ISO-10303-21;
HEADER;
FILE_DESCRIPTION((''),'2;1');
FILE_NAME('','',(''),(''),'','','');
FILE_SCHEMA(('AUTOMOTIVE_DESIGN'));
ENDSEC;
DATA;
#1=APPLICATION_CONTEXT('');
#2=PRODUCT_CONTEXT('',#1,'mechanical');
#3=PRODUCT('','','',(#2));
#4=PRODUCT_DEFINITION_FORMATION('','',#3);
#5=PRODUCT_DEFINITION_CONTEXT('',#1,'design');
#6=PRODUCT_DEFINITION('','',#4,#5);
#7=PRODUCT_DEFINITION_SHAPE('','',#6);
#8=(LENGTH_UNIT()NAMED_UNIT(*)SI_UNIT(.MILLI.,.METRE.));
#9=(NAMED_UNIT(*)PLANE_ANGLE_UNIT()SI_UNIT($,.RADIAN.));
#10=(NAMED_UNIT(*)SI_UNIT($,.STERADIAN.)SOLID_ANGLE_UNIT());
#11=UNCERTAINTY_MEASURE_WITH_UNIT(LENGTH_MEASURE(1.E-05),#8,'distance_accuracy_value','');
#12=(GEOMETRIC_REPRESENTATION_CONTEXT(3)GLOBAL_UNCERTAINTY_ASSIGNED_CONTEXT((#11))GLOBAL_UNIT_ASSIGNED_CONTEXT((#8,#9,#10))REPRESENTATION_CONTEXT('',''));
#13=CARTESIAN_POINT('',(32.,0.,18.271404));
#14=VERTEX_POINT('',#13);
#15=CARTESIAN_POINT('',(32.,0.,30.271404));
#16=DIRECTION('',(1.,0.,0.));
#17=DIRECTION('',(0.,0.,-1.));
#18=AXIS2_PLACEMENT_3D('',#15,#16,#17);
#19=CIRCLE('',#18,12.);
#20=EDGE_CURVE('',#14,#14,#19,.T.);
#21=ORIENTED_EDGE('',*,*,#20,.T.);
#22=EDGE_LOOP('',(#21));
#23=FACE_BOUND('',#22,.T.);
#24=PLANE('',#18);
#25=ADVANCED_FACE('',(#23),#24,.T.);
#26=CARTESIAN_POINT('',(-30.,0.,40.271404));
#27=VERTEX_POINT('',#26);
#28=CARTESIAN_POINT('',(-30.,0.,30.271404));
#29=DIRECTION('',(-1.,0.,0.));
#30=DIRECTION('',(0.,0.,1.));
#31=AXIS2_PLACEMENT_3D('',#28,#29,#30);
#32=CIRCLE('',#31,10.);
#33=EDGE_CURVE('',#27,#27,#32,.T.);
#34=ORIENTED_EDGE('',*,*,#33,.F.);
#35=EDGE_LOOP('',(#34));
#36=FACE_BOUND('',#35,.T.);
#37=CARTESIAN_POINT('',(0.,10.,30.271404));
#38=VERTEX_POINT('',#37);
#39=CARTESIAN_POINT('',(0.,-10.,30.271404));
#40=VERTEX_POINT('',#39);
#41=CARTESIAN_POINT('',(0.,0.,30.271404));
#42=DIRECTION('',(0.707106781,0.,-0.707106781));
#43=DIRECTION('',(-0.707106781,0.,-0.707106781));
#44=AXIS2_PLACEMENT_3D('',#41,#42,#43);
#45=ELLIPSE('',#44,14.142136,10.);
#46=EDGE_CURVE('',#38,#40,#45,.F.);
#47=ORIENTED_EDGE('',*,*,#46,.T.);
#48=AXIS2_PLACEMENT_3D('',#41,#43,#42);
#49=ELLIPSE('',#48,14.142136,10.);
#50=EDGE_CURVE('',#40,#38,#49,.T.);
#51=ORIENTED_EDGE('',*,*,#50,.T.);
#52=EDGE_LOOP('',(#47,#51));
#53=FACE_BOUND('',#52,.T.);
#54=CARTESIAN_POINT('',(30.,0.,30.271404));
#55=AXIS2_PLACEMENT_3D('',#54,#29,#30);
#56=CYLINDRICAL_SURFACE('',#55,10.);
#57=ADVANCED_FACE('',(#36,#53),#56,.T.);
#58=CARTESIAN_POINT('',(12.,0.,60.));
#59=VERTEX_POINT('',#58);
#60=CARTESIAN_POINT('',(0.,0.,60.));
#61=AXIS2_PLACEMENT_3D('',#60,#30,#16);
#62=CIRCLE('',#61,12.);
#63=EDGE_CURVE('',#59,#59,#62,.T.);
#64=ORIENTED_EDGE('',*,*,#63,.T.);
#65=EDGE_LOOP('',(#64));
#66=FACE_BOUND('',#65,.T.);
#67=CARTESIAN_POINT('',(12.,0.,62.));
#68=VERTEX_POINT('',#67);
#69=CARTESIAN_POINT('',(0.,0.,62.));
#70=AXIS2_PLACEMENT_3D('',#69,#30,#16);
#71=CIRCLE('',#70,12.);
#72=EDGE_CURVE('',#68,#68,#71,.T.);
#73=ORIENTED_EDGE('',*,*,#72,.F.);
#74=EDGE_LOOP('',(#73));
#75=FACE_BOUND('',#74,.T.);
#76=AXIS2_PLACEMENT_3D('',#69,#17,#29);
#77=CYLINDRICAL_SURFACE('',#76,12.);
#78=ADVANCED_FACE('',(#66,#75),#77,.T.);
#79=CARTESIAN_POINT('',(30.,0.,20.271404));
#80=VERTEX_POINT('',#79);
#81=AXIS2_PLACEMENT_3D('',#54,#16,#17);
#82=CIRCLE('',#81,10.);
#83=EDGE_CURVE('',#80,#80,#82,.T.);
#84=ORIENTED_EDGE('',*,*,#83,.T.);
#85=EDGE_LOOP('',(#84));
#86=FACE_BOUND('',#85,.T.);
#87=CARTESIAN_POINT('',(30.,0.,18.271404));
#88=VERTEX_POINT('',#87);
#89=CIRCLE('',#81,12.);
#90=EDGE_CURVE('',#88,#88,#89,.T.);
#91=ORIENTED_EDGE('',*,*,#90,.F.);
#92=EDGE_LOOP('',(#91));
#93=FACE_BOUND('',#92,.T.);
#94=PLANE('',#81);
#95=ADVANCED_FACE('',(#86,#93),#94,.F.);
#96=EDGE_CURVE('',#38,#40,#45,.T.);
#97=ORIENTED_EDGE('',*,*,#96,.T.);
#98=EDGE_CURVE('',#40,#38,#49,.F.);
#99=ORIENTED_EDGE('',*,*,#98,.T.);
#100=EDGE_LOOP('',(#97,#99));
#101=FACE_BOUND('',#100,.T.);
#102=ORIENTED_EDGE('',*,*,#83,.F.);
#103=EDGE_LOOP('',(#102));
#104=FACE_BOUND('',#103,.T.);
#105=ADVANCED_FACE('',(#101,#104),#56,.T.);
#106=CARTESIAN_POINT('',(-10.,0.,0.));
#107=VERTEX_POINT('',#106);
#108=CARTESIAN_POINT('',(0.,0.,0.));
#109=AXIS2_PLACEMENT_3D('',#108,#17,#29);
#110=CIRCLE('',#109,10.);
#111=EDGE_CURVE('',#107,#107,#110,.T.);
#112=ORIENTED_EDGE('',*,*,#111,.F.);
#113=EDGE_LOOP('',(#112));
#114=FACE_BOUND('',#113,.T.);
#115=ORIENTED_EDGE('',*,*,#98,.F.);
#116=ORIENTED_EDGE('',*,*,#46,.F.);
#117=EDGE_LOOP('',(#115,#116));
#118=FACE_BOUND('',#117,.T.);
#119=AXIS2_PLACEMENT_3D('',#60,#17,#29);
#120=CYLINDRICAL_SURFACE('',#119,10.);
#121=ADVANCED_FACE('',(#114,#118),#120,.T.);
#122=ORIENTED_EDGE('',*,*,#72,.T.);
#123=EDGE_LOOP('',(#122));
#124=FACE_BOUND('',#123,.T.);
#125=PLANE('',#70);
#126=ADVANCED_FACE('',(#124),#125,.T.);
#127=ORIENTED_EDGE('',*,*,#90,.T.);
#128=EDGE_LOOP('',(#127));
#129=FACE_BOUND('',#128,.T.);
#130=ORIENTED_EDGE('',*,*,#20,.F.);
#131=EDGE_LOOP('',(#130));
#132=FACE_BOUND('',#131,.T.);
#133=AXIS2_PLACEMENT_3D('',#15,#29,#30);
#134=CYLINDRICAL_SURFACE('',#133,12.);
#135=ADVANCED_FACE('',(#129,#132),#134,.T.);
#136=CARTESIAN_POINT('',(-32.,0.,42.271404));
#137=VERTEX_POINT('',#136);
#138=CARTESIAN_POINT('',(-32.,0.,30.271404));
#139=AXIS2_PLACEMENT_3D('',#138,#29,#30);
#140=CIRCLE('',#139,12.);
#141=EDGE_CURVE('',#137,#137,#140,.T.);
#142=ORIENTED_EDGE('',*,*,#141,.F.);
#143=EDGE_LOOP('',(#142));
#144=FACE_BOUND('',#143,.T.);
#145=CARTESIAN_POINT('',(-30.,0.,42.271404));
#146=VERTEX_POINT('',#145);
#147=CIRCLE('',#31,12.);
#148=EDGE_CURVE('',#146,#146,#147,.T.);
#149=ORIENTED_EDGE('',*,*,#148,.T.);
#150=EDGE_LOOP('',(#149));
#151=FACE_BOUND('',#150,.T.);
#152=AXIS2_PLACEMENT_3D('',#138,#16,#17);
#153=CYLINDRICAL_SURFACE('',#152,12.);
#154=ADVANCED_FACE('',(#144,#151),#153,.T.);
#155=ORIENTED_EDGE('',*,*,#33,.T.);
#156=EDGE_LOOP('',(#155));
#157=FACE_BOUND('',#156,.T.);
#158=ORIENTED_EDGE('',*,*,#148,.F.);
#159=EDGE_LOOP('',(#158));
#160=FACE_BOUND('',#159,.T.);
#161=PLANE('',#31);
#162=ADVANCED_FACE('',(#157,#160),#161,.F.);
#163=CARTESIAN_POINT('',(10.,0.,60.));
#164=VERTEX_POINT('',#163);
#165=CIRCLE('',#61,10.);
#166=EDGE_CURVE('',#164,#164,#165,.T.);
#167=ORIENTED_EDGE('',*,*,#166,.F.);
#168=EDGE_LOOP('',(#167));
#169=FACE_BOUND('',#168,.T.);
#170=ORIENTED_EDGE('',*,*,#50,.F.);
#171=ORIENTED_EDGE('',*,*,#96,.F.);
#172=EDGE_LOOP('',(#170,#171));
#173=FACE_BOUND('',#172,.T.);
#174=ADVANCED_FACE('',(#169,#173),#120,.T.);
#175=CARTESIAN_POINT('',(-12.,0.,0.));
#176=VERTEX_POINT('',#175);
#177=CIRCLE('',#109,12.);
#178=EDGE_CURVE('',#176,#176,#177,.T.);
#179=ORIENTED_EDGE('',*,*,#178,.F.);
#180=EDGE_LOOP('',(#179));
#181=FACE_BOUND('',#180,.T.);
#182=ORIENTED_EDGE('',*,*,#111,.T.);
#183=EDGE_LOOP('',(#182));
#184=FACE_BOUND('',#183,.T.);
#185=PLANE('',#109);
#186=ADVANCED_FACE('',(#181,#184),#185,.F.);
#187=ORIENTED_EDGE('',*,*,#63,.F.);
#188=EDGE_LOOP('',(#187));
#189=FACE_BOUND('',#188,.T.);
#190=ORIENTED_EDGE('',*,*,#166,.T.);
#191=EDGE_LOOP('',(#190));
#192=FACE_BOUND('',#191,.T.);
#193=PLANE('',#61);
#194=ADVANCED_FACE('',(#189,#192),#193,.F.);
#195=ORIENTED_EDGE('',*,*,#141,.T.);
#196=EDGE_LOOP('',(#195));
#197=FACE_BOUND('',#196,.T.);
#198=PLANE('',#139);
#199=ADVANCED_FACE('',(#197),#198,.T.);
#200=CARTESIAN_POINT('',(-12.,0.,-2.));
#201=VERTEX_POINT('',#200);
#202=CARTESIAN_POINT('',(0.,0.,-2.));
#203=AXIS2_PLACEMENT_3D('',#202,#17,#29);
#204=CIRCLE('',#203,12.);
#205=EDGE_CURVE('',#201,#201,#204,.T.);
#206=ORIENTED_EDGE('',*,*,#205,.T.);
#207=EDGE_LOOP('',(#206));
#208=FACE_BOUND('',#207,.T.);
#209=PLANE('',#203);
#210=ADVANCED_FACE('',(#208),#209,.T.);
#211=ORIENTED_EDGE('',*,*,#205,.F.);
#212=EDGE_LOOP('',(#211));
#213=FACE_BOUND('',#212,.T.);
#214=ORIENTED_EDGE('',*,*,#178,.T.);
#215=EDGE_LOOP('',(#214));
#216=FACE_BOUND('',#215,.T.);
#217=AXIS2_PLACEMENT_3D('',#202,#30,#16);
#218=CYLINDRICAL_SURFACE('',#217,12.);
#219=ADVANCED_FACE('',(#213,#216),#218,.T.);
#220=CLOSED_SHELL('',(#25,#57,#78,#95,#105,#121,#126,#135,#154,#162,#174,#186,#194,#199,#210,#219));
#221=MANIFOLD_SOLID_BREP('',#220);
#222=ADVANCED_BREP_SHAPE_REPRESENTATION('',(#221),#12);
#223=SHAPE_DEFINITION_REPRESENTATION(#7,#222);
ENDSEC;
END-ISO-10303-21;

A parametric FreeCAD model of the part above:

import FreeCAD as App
import Part
import Sketcher

V = App.Vector
Q = App.Units.Quantity

doc = App.newDocument("Part")
body = doc.addObject("PartDesign::Body", "Body")

# Sketch on XY plane
sketch1 = doc.addObject("Sketcher::SketchObject", "Sketch")
body.addObject(sketch1)
sketch1.AttachmentSupport = (doc.XY_Plane, [""])
sketch1.MapMode = "FlatFace"
sketch1.addGeometry(Part.Circle(V(0, 0, 0), V(0, 0, 1), 10), False)
sketch1.addConstraint([
    Sketcher.Constraint("Coincident", 0, 3, -1, 1),
    Sketcher.Constraint("Diameter", 0, Q("20 mm")),
])
pad1 = doc.addObject("PartDesign::Pad", "Pad")
body.addObject(pad1)
pad1.Profile = sketch1
pad1.Length = 60

# Sketch on XY plane
sketch2 = doc.addObject("Sketcher::SketchObject", "Sketch001")
body.addObject(sketch2)
sketch2.AttachmentSupport = (doc.XY_Plane, [""])
sketch2.MapMode = "FlatFace"
sketch2.AttachmentOffset = App.Placement(V(0, 0, 60), App.Rotation())
sketch2.addGeometry(Part.Circle(V(0, 0, 0), V(0, 0, 1), 12), False)
sketch2.addConstraint([
    Sketcher.Constraint("Coincident", 0, 3, -1, 1),
    Sketcher.Constraint("Diameter", 0, Q("24 mm")),
])
pad2 = doc.addObject("PartDesign::Pad", "Pad001")
body.addObject(pad2)
pad2.Profile = sketch2
pad2.Length = 2

# Sketch on XY plane
sketch3 = doc.addObject("Sketcher::SketchObject", "Sketch002")
body.addObject(sketch3)
sketch3.AttachmentSupport = (doc.XY_Plane, [""])
sketch3.MapMode = "FlatFace"
sketch3.AttachmentOffset = App.Placement(V(0, 0, -2), App.Rotation())
sketch3.addGeometry(Part.Circle(V(0, 0, 0), V(0, 0, 1), 12), False)
sketch3.addConstraint([
    Sketcher.Constraint("Coincident", 0, 3, -1, 1),
    Sketcher.Constraint("Diameter", 0, Q("24 mm")),
])
pad3 = doc.addObject("PartDesign::Pad", "Pad002")
body.addObject(pad3)
pad3.Profile = sketch3
pad3.Length = 2

# Sketch on YZ plane
sketch4 = doc.addObject("Sketcher::SketchObject", "Sketch003")
body.addObject(sketch4)
sketch4.AttachmentSupport = (doc.YZ_Plane, [""])
sketch4.MapMode = "FlatFace"
sketch4.addGeometry(Part.Circle(V(0, 30, 0), V(0, 0, 1), 10), False)
sketch4.addConstraint([
    Sketcher.Constraint("PointOnObject", 0, 3, -2),
    Sketcher.Constraint("Diameter", 0, Q("20 mm")),
    Sketcher.Constraint("DistanceY", -1, 1, 0, 3, Q("30.271404 mm")),
])
pad4 = doc.addObject("PartDesign::Pad", "Pad003")
body.addObject(pad4)
pad4.Profile = sketch4
pad4.Length = 60
pad4.Midplane = True

# Sketch on YZ plane
sketch5 = doc.addObject("Sketcher::SketchObject", "Sketch004")
body.addObject(sketch5)
sketch5.AttachmentSupport = (doc.YZ_Plane, [""])
sketch5.MapMode = "FlatFace"
sketch5.AttachmentOffset = App.Placement(V(0, 0, 30), App.Rotation())
sketch5.addGeometry(Part.Circle(V(0, 30, 0), V(0, 0, 1), 12), False)
sketch5.addConstraint([
    Sketcher.Constraint("PointOnObject", 0, 3, -2),
    Sketcher.Constraint("Diameter", 0, Q("24 mm")),
    Sketcher.Constraint("DistanceY", -1, 1, 0, 3, Q("30.271404 mm")),
])
pad5 = doc.addObject("PartDesign::Pad", "Pad004")
body.addObject(pad5)
pad5.Profile = sketch5
pad5.Length = 2

# Sketch on YZ plane
sketch6 = doc.addObject("Sketcher::SketchObject", "Sketch005")
body.addObject(sketch6)
sketch6.AttachmentSupport = (doc.YZ_Plane, [""])
sketch6.MapMode = "FlatFace"
sketch6.AttachmentOffset = App.Placement(V(0, 0, -32), App.Rotation())
sketch6.addGeometry(Part.Circle(V(0, 30, 0), V(0, 0, 1), 12), False)
sketch6.addConstraint([
    Sketcher.Constraint("PointOnObject", 0, 3, -2),
    Sketcher.Constraint("Diameter", 0, Q("24 mm")),
    Sketcher.Constraint("DistanceY", -1, 1, 0, 3, Q("30.271404 mm")),
])
pad6 = doc.addObject("PartDesign::Pad", "Pad005")
body.addObject(pad6)
pad6.Profile = sketch6
pad6.Length = 2

doc.recompute()
